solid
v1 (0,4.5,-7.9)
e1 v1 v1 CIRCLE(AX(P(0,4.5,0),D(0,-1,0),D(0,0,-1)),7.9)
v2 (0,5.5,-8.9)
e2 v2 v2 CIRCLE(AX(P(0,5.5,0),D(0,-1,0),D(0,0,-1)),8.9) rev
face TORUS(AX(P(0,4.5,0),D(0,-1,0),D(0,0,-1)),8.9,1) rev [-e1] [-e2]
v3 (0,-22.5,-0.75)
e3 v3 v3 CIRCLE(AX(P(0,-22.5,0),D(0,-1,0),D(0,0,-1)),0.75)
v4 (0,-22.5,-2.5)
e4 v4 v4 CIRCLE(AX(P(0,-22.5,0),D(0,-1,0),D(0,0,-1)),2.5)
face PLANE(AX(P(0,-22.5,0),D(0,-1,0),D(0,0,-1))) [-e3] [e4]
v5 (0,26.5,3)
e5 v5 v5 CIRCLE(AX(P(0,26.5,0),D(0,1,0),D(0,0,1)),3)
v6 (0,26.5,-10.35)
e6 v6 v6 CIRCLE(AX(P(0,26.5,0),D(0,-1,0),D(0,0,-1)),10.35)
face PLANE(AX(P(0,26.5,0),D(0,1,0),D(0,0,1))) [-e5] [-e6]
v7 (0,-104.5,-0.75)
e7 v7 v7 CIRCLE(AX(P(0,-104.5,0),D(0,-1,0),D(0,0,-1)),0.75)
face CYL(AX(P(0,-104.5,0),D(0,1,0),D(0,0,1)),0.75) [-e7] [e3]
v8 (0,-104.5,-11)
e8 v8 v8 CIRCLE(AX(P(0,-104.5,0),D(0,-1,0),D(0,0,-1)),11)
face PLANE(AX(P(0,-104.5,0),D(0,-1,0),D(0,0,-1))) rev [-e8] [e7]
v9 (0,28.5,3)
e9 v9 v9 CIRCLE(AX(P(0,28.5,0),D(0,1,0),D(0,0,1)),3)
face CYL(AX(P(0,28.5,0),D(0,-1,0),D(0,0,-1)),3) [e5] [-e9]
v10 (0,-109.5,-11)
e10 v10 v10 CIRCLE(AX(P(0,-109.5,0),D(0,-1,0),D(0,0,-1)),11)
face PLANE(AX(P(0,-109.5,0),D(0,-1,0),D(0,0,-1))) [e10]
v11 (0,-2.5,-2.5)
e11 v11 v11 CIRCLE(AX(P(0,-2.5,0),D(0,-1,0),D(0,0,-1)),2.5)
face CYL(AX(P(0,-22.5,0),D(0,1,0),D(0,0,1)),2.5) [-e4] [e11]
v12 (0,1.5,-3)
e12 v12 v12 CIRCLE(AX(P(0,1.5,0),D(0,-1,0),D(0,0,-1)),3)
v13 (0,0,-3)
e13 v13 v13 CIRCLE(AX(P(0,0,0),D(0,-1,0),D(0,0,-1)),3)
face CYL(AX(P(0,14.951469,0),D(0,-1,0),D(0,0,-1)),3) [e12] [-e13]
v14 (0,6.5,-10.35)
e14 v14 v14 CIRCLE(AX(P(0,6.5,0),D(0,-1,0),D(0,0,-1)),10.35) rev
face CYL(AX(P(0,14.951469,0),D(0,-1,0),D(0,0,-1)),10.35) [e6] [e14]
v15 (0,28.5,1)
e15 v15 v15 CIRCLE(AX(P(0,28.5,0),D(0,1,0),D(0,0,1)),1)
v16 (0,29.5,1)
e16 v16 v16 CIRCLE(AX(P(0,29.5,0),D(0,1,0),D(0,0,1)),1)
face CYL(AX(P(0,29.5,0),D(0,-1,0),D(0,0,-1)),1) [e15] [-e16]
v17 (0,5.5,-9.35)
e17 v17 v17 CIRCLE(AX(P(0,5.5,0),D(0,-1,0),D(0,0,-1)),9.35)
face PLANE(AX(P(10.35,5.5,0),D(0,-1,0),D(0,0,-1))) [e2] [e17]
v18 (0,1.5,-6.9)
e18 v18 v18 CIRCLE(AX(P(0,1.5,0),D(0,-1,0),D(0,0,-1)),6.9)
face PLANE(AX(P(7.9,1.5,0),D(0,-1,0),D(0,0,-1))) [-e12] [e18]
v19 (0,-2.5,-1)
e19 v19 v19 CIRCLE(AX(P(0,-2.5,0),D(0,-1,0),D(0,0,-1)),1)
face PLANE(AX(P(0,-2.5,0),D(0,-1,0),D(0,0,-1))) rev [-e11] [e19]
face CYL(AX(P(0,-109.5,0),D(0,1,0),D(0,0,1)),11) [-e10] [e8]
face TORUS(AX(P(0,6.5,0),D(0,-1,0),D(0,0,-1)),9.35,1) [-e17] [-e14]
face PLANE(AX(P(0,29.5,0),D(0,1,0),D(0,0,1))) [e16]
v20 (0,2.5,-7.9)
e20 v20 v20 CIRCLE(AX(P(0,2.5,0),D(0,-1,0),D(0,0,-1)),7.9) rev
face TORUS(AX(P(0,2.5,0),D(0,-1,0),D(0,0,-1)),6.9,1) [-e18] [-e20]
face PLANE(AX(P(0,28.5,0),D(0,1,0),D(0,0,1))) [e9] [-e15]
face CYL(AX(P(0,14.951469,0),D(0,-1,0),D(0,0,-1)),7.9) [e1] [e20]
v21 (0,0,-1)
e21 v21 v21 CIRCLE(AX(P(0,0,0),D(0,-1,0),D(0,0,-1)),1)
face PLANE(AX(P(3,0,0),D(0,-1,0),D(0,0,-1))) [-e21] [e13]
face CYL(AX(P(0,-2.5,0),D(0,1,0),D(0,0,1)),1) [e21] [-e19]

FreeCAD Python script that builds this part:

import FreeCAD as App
import Part
import Sketcher
from FreeCAD import Vector


def edges_at(feature, points):
    """Names of the edges that pass closest to the given points."""
    edges = feature.Shape.Edges
    near = lambda p: min(range(len(edges)), key=lambda i: edges[i].distToShape(Part.Vertex(*p))[0])
    return sorted({f"Edge{near(p) + 1}" for p in points})


def add_polygon(sketch, points):
    """Adds a closed chain of lines whose ends are joined by coincident constraints."""
    first, n = sketch.GeometryCount, len(points)
    for a, b in zip(points, points[1:] + points[:1]):
        sketch.addGeometry(Part.LineSegment(App.Vector(*a, 0), App.Vector(*b, 0)), False)
    for i in range(n):
        sketch.addConstraint(Sketcher.Constraint("Coincident", first + i, 2, first + (i + 1) % n, 1))

doc = App.newDocument("Part")
params = doc.addObject("Spreadsheet::Sheet", "Params")
for row, (alias, value) in enumerate([
    ("sketch1_width", "3 mm"),
    ("sketch1_height", "4 mm"),
    ("sketch1_height2", "21 mm"),
    ("sketch1_width2", "4.9 mm"),
    ("sketch1_height3", "26.5 mm"),
    ("revolution_angle", "360 deg"),
    ("sketch2_diameter", "6 mm"),
    ("pad1_length", "2 mm"),
    ("sketch3_diameter", "2 mm"),
    ("pad2_length", "1 mm"),
    ("sketch4_diameter", "2 mm"),
    ("pad3_length", "2.5 mm"),
    ("sketch5_diameter", "5 mm"),
    ("pad4_length", "20 mm"),
    ("sketch6_diameter", "1.5 mm"),
    ("pad5_length", "82 mm"),
    ("sketch7_diameter", "22 mm"),
    ("pad6_length", "5 mm"),
    ("fillet_radius", "1 mm"),
], start=1):
    params.set(f"A{row}", alias)
    params.set(f"B{row}", "=" + value)
    params.setAlias(f"B{row}", alias)

body = doc.addObject("PartDesign::Body", "Body")

sketch1 = body.newObject("Sketcher::SketchObject", "Sketch")
sketch1.AttachmentSupport = (doc.getObject("XY_Plane"), [""])
sketch1.MapMode = "FlatFace"
add_polygon(sketch1, [(0, 26.5), (0, 0), (3, 0), (3, 1.5), (7.9, 1.5), (7.9, 5.5), (10.3, 5.5), (10.3, 26.5)])
sketch1.addConstraint([
    Sketcher.Constraint("Vertical", 0),
    Sketcher.Constraint("Horizontal", 1),
    Sketcher.Constraint("Vertical", 2),
    Sketcher.Constraint("Horizontal", 3),
    Sketcher.Constraint("Vertical", 4),
    Sketcher.Constraint("Horizontal", 5),
    Sketcher.Constraint("Vertical", 6),
    Sketcher.Constraint("Horizontal", 7),
    Sketcher.Constraint("Coincident", 0, 2, -1, 1),
    Sketcher.Constraint("DistanceX", 1, 1, 1, 2, 3.0),
    Sketcher.Constraint("DistanceY", 4, 1, 4, 2, 4.0),
    Sketcher.Constraint("DistanceY", 6, 1, 6, 2, 21.0),
    Sketcher.Constraint("DistanceX", 3, 1, 3, 2, 4.9),
    Sketcher.Constraint("DistanceY", 0, 2, 0, 1, 26.5),
    Sketcher.Constraint("DistanceX", 5, 1, 5, 2, 2.45),
])
sketch1.setExpression("Constraints[17]", "Params.sketch1_width")
sketch1.setExpression("Constraints[18]", "Params.sketch1_height")
sketch1.setExpression("Constraints[19]", "Params.sketch1_height2")
sketch1.setExpression("Constraints[20]", "Params.sketch1_width2")
sketch1.setExpression("Constraints[21]", "Params.sketch1_height3")
revolution = body.newObject("PartDesign::Revolution", "Revolution")
revolution.Profile = sketch1
revolution.ReferenceAxis = (sketch1, ["V_Axis"])
revolution.setExpression("Angle", "Params.revolution_angle")

sketch2 = body.newObject("Sketcher::SketchObject", "Sketch001")
sketch2.AttachmentSupport = (doc.getObject("XZ_Plane"), [""])
sketch2.MapMode = "FlatFace"
sketch2.AttachmentOffset = App.Placement(Vector(0, 0, -26.5), App.Rotation())
sketch2.addGeometry(Part.Circle(Vector(0, 0, 0), Vector(0, 0, 1), 3), False)
sketch2.addConstraint([
    Sketcher.Constraint("Coincident", 0, 3, -1, 1),
    Sketcher.Constraint("Diameter", 0, 6.0),
])
sketch2.setExpression("Constraints[1]", "Params.sketch2_diameter")
pad1 = body.newObject("PartDesign::Pad", "Pad")
pad1.Profile = sketch2
pad1.setExpression("Length", "Params.pad1_length")
pad1.Reversed = True

sketch3 = body.newObject("Sketcher::SketchObject", "Sketch002")
sketch3.AttachmentSupport = (doc.getObject("XZ_Plane"), [""])
sketch3.MapMode = "FlatFace"
sketch3.AttachmentOffset = App.Placement(Vector(0, 0, -28.5), App.Rotation())
sketch3.addGeometry(Part.Circle(Vector(0, 0, 0), Vector(0, 0, 1), 1), False)
sketch3.addConstraint([
    Sketcher.Constraint("Coincident", 0, 3, -1, 1),
    Sketcher.Constraint("Diameter", 0, 2.0),
])
sketch3.setExpression("Constraints[1]", "Params.sketch3_diameter")
pad2 = body.newObject("PartDesign::Pad", "Pad001")
pad2.Profile = sketch3
pad2.setExpression("Length", "Params.pad2_length")
pad2.Reversed = True

sketch4 = body.newObject("Sketcher::SketchObject", "Sketch003")
sketch4.AttachmentSupport = (doc.getObject("XZ_Plane"), [""])
sketch4.MapMode = "FlatFace"
sketch4.AttachmentOffset = App.Placement(Vector(0, 0, 2.5), App.Rotation())
sketch4.addGeometry(Part.Circle(Vector(0, 0, 0), Vector(0, 0, 1), 1), False)
sketch4.addConstraint([
    Sketcher.Constraint("Coincident", 0, 3, -1, 1),
    Sketcher.Constraint("Diameter", 0, 2.0),
])
sketch4.setExpression("Constraints[1]", "Params.sketch4_diameter")
pad3 = body.newObject("PartDesign::Pad", "Pad002")
pad3.Profile = sketch4
pad3.setExpression("Length", "Params.pad3_length")
pad3.Reversed = True

sketch5 = body.newObject("Sketcher::SketchObject", "Sketch004")
sketch5.AttachmentSupport = (doc.getObject("XZ_Plane"), [""])
sketch5.MapMode = "FlatFace"
sketch5.AttachmentOffset = App.Placement(Vector(0, 0, 2.5), App.Rotation())
sketch5.addGeometry(Part.Circle(Vector(0, 0, 0), Vector(0, 0, 1), 2.5), False)
sketch5.addConstraint([
    Sketcher.Constraint("Coincident", 0, 3, -1, 1),
    Sketcher.Constraint("Diameter", 0, 5.0),
])
sketch5.setExpression("Constraints[1]", "Params.sketch5_diameter")
pad4 = body.newObject("PartDesign::Pad", "Pad003")
pad4.Profile = sketch5
pad4.setExpression("Length", "Params.pad4_length")

sketch6 = body.newObject("Sketcher::SketchObject", "Sketch005")
sketch6.AttachmentSupport = (doc.getObject("XZ_Plane"), [""])
sketch6.MapMode = "FlatFace"
sketch6.AttachmentOffset = App.Placement(Vector(0, 0, 22.5), App.Rotation())
sketch6.addGeometry(Part.Circle(Vector(0, 0, 0), Vector(0, 0, 1), 0.8), False)
sketch6.addConstraint([
    Sketcher.Constraint("Coincident", 0, 3, -1, 1),
    Sketcher.Constraint("Diameter", 0, 1.5),
])
sketch6.setExpression("Constraints[1]", "Params.sketch6_diameter")
pad5 = body.newObject("PartDesign::Pad", "Pad004")
pad5.Profile = sketch6
pad5.setExpression("Length", "Params.pad5_length")

sketch7 = body.newObject("Sketcher::SketchObject", "Sketch006")
sketch7.AttachmentSupport = (doc.getObject("XZ_Plane"), [""])
sketch7.MapMode = "FlatFace"
sketch7.AttachmentOffset = App.Placement(Vector(0, 0, 104.5), App.Rotation())
sketch7.addGeometry(Part.Circle(Vector(0, 0, 0), Vector(0, 0, 1), 11), False)
sketch7.addConstraint([
    Sketcher.Constraint("Coincident", 0, 3, -1, 1),
    Sketcher.Constraint("Diameter", 0, 22.0),
])
sketch7.setExpression("Constraints[1]", "Params.sketch7_diameter")
pad6 = body.newObject("PartDesign::Pad", "Pad005")
pad6.Profile = sketch7
pad6.setExpression("Length", "Params.pad6_length")
doc.recompute()

fillet = body.newObject("PartDesign::Fillet", "Fillet")
fillet.Base = (pad6, edges_at(pad6, [(0, 1.5, 7.9), (0, 5.5, 7.9), (0, 5.5, 10.35)]))
fillet.setExpression("Radius", "Params.fillet_radius")

doc.recompute()
